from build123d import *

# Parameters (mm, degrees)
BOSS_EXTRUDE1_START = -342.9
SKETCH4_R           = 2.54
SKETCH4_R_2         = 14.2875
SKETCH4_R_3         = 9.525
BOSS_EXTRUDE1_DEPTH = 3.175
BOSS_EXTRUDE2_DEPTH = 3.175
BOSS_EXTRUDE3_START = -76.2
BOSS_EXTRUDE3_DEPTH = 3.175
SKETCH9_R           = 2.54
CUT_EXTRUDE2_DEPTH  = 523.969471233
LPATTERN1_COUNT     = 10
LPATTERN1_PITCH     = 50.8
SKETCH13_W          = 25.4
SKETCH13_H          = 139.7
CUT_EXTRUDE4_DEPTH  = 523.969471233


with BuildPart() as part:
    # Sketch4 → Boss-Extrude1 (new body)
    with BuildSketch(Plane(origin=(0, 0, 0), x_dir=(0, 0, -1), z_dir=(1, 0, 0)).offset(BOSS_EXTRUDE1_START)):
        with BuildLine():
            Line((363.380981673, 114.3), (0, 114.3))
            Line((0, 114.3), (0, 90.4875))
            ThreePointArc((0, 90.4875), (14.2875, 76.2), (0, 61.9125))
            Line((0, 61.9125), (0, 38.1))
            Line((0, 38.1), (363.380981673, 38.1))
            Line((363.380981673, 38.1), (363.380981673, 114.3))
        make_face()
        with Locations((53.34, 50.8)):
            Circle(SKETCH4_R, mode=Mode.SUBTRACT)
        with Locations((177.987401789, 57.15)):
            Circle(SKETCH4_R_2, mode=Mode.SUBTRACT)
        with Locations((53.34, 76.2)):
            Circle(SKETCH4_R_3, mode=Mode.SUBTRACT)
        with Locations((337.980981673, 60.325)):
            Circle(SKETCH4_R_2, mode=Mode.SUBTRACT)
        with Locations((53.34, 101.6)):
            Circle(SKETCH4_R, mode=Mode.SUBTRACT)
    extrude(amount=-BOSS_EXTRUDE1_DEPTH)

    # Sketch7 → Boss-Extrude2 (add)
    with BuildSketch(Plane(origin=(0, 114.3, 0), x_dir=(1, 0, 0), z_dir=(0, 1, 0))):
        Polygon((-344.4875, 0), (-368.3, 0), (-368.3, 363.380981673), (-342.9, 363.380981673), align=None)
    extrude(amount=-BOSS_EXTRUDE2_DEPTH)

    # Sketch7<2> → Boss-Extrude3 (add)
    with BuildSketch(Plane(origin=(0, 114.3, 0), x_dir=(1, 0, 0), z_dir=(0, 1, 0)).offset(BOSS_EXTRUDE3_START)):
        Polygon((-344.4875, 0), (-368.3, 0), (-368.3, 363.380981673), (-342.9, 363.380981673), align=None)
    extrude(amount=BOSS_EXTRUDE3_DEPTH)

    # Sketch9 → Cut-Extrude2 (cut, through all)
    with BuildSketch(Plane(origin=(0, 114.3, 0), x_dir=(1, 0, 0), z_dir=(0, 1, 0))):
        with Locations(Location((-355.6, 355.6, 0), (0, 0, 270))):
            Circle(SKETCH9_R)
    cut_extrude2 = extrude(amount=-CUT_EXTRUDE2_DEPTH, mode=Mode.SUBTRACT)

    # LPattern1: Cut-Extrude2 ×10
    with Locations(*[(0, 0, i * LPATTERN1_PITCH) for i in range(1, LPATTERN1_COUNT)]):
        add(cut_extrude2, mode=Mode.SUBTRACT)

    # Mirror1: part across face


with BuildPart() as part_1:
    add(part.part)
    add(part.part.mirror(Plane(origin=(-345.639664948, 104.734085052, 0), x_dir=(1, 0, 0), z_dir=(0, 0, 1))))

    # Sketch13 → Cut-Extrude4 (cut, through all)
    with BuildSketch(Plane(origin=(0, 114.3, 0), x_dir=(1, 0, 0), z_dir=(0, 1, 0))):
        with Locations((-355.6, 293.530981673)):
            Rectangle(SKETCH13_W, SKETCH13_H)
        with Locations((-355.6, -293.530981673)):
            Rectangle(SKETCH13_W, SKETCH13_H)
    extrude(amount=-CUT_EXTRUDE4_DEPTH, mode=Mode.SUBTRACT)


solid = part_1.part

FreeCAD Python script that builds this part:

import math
import FreeCAD as App
import Part
import Sketcher

V = App.Vector
Q = App.Units.Quantity


def add_polygon(sketch, points):
    """Adds a closed chain of lines whose ends are joined by coincident constraints."""
    first, n = sketch.GeometryCount, len(points)
    for a, b in zip(points, points[1:] + points[:1]):
        sketch.addGeometry(Part.LineSegment(App.Vector(*a, 0), App.Vector(*b, 0)), False)
    for i in range(n):
        sketch.addConstraint(Sketcher.Constraint("Coincident", first + i, 2, first + (i + 1) % n, 1))

doc = App.newDocument("Part")
body = doc.addObject("PartDesign::Body", "Body")

# Sketch on YZ plane
sketch1 = body.newObject("Sketcher::SketchObject", "Sketch")
sketch1.AttachmentSupport = (doc.getObject("YZ_Plane"), [""])
sketch1.MapMode = "FlatFace"
sketch1.AttachmentOffset = App.Placement(V(0, 0, -13.5 * 25.4), App.Rotation())
sketch1.addGeometry([
    Part.LineSegment(V(114.3, -363.4, 0), V(114.3, 0, 0)),  # 0
    Part.LineSegment(V(114.3, 0, 0), V(90.5, 0, 0)),  # 1
    Part.ArcOfCircle(Part.Circle(V(76.2, 0, 0), V(0, 0, 1), 14.3), math.radians(180), math.radians(360)),  # 2
    Part.LineSegment(V(61.9, 0, 0), V(38.1, 0, 0)),  # 3
    Part.LineSegment(V(38.1, 0, 0), V(38.1, -363.4, 0)),  # 4
    Part.LineSegment(V(38.1, -363.4, 0), V(114.3, -363.4, 0)),  # 5
    Part.Circle(V(50.8, -53.3, 0), V(0, 0, 1), 2.5),  # 6
    Part.Circle(V(57.1, -178, 0), V(0, 0, 1), 14.3),  # 7
    Part.Circle(V(60.3, -338, 0), V(0, 0, 1), 14.3),  # 8
    Part.Circle(V(76.2, -53.3, 0), V(0, 0, 1), 9.5),  # 9
    Part.Circle(V(101.6, -53.3, 0), V(0, 0, 1), 2.5),  # 10
], False)
sketch1.addConstraint([
    Sketcher.Constraint("Coincident", 0, 2, 1, 1),
    Sketcher.Constraint("Coincident", 1, 2, 2, 2),
    Sketcher.Constraint("Coincident", 2, 1, 3, 1),
    Sketcher.Constraint("Coincident", 3, 2, 4, 1),
    Sketcher.Constraint("Coincident", 4, 2, 5, 1),
    Sketcher.Constraint("Coincident", 5, 2, 0, 1),
    Sketcher.Constraint("Vertical", 0),
    Sketcher.Constraint("Horizontal", 1),
    Sketcher.Constraint("Horizontal", 3),
    Sketcher.Constraint("Vertical", 4),
    Sketcher.Constraint("Horizontal", 5),
    Sketcher.Constraint("Equal", 2, 7),
    Sketcher.Constraint("Equal", 7, 8),
    Sketcher.Constraint("Equal", 6, 10),
    Sketcher.Constraint("PointOnObject", 2, 3, -1),
    Sketcher.Constraint("PointOnObject", 0, 2, -1),
    Sketcher.Constraint("PointOnObject", 2, 1, -1),
    Sketcher.Constraint("Horizontal", 6, 3, 9, 3),
    Sketcher.Constraint("Horizontal", 9, 3, 10, 3),
    Sketcher.Constraint("Vertical", 2, 3, 9, 3),
    Sketcher.Constraint("Equal", 1, 3),
    Sketcher.Constraint("Diameter", 6, Q("0.2 in")),
    Sketcher.Constraint("Diameter", 9, Q("0.75 in")),
    Sketcher.Constraint("DistanceX", 5, 1, 5, 2, Q("3 in")),
    Sketcher.Constraint("Diameter", 7, Q("1.125 in")),
    Sketcher.Constraint("DistanceX", -1, 1, 2, 3, Q("3 in")),
    Sketcher.Constraint("DistanceX", -1, 1, 6, 3, Q("2 in")),
    Sketcher.Constraint("DistanceX", -1, 1, 10, 3, Q("4 in")),
    Sketcher.Constraint("DistanceY", 4, 2, 8, 3, Q("1 in")),
    Sketcher.Constraint("DistanceY", 6, 3, -1, 1, Q("2.1 in")),
    Sketcher.Constraint("DistanceX", -1, 1, 7, 3, Q("2.25 in")),
    Sketcher.Constraint("DistanceX", -1, 1, 8, 3, Q("2.375 in")),
    Sketcher.Constraint("DistanceY", 0, 1, 0, 2, 363.380982),
    Sketcher.Constraint("DistanceY", 7, 3, -1, 1, 177.987402),
])
pad1 = body.newObject("PartDesign::Pad", "Pad")
pad1.Profile = sketch1
pad1.Length = Q("0.125 in")
pad1.Reversed = True

# Sketch on XZ plane
sketch2 = body.newObject("Sketcher::SketchObject", "Sketch001")
sketch2.AttachmentSupport = (doc.getObject("XZ_Plane"), [""])
sketch2.MapMode = "FlatFace"
sketch2.AttachmentOffset = App.Placement(V(0, 0, -4.5 * 25.4), App.Rotation())
add_polygon(sketch2, [(-368, 0), (-344, 0), (-343, -363), (-368, -363)])  # lines 0-3
sketch2.addConstraint([
    Sketcher.Constraint("Horizontal", 0),
    Sketcher.Constraint("Horizontal", 2),
    Sketcher.Constraint("Vertical", 3),
    Sketcher.Constraint("PointOnObject", 0, 2, -1),
    Sketcher.Constraint("DistanceX", 2, 2, 2, 1, Q("1 in")),
    Sketcher.Constraint("DistanceX", 1, 2, -1, 1, Q("13.5 in")),
    Sketcher.Constraint("DistanceX", 0, 1, 0, 2, Q("0.9375 in")),
    Sketcher.Constraint("DistanceY", 3, 1, 3, 2, 363.380982),
])
pad2 = body.newObject("PartDesign::Pad", "Pad001")
pad2.Profile = sketch2
pad2.Length = Q("0.125 in")

# Sketch on XZ plane
sketch3 = body.newObject("Sketcher::SketchObject", "Sketch002")
sketch3.AttachmentSupport = (doc.getObject("XZ_Plane"), [""])
sketch3.MapMode = "FlatFace"
sketch3.AttachmentOffset = App.Placement(V(0, 0, -1.5 * 25.4), App.Rotation())
add_polygon(sketch3, [(-368, 0), (-344, 0), (-343, -363), (-368, -363)])  # lines 0-3
sketch3.addConstraint([
    Sketcher.Constraint("Horizontal", 0),
    Sketcher.Constraint("Horizontal", 2),
    Sketcher.Constraint("Vertical", 3),
    Sketcher.Constraint("PointOnObject", 0, 2, -1),
    Sketcher.Constraint("DistanceX", 2, 2, 2, 1, Q("1 in")),
    Sketcher.Constraint("DistanceX", 1, 2, -1, 1, Q("13.5 in")),
    Sketcher.Constraint("DistanceX", 0, 1, 0, 2, Q("0.9375 in")),
    Sketcher.Constraint("DistanceY", 3, 1, 3, 2, 363.380982),
])
pad3 = body.newObject("PartDesign::Pad", "Pad002")
pad3.Profile = sketch3
pad3.Length = Q("0.125 in")
pad3.Reversed = True

# Sketch on XZ plane
sketch4 = body.newObject("Sketcher::SketchObject", "Sketch003")
sketch4.AttachmentSupport = (doc.getObject("XZ_Plane"), [""])
sketch4.MapMode = "FlatFace"
sketch4.AttachmentOffset = App.Placement(V(0, 0, -4.5 * 25.4), App.Rotation())
sketch4.addGeometry(Part.Circle(V(-355.6, -355.6, 0), V(0, 0, 1), 2.5), False)
sketch4.addConstraint([
    Sketcher.Constraint("Diameter", 0, Q("0.2 in")),
    Sketcher.Constraint("DistanceX", 0, 3, -1, 1, Q("14 in")),
    Sketcher.Constraint("DistanceY", 0, 3, -1, 1, Q("14 in")),
])
pocket1 = body.newObject("PartDesign::Pocket", "Pocket")
pocket1.Profile = sketch4
pocket1.Type = "ThroughAll"
pocket1.Reversed = True
doc.recompute()

linearpattern = body.newObject("PartDesign::LinearPattern", "LinearPattern")
linearpattern.Originals = [pocket1]
linearpattern.Direction = (doc.getObject("Z_Axis"), [""])
linearpattern.Mode = "offset"
linearpattern.Offset = Q("2 in")
linearpattern.Occurrences = 10
body.Tip = linearpattern
body2 = doc.addObject("PartDesign::Body", "Body001")
doc.recompute()

body2.BaseFeature = body
doc.recompute()

mirroring = doc.addObject("Part::Mirroring", "Mirroring")
mirroring.Source = body
mirroring.Base = V(-345.639665, 104.734085, 0)
mirroring.Normal = V(0, 0, 1)
body3 = doc.addObject("PartDesign::Body", "Body002")
body3.BaseFeature = mirroring
boolean = body2.newObject("PartDesign::Boolean", "Boolean")
boolean.Type = "Fuse"
boolean.addObjects([body3])
doc.recompute()

# Sketch on XZ plane
sketch5 = body2.newObject("Sketcher::SketchObject", "Sketch004")
sketch5.AttachmentSupport = (doc.getObject("XZ_Plane001"), [""])
sketch5.MapMode = "FlatFace"
sketch5.AttachmentOffset = App.Placement(V(0, 0, -4.5 * 25.4), App.Rotation())
add_polygon(sketch5, [(-368, -363), (-368, -224), (-343, -224), (-343, -363)])  # lines 0-3
add_polygon(sketch5, [(-368, 224), (-368, 363), (-343, 363), (-343, 224)])  # lines 4-7
sketch5.addConstraint([
    Sketcher.Constraint("Vertical", 0),
    Sketcher.Constraint("Horizontal", 1),
    Sketcher.Constraint("Vertical", 2),
    Sketcher.Constraint("Horizontal", 3),
    Sketcher.Constraint("Vertical", 4),
    Sketcher.Constraint("Horizontal", 5),
    Sketcher.Constraint("Vertical", 6),
    Sketcher.Constraint("Horizontal", 7),
    Sketcher.Constraint("Symmetric", 3, 2, 4, 2, -1),
    Sketcher.Constraint("Symmetric", 1, 2, 6, 2, -1),
    Sketcher.Constraint("DistanceX", 1, 1, 1, 2, Q("1 in")),
    Sketcher.Constraint("DistanceY", 0, 1, 0, 2, Q("5.5 in")),
    Sketcher.Constraint("DistanceX", 0, 2, -1, 1, Q("14.5 in")),
    Sketcher.Constraint("DistanceY", 0, 2, -1, 1, 223.680982),
])
pocket2 = body2.newObject("PartDesign::Pocket", "Pocket001")
pocket2.Profile = sketch5
pocket2.Type = "ThroughAll"
pocket2.Reversed = True
mirroring.Visibility = False

doc.recompute()
